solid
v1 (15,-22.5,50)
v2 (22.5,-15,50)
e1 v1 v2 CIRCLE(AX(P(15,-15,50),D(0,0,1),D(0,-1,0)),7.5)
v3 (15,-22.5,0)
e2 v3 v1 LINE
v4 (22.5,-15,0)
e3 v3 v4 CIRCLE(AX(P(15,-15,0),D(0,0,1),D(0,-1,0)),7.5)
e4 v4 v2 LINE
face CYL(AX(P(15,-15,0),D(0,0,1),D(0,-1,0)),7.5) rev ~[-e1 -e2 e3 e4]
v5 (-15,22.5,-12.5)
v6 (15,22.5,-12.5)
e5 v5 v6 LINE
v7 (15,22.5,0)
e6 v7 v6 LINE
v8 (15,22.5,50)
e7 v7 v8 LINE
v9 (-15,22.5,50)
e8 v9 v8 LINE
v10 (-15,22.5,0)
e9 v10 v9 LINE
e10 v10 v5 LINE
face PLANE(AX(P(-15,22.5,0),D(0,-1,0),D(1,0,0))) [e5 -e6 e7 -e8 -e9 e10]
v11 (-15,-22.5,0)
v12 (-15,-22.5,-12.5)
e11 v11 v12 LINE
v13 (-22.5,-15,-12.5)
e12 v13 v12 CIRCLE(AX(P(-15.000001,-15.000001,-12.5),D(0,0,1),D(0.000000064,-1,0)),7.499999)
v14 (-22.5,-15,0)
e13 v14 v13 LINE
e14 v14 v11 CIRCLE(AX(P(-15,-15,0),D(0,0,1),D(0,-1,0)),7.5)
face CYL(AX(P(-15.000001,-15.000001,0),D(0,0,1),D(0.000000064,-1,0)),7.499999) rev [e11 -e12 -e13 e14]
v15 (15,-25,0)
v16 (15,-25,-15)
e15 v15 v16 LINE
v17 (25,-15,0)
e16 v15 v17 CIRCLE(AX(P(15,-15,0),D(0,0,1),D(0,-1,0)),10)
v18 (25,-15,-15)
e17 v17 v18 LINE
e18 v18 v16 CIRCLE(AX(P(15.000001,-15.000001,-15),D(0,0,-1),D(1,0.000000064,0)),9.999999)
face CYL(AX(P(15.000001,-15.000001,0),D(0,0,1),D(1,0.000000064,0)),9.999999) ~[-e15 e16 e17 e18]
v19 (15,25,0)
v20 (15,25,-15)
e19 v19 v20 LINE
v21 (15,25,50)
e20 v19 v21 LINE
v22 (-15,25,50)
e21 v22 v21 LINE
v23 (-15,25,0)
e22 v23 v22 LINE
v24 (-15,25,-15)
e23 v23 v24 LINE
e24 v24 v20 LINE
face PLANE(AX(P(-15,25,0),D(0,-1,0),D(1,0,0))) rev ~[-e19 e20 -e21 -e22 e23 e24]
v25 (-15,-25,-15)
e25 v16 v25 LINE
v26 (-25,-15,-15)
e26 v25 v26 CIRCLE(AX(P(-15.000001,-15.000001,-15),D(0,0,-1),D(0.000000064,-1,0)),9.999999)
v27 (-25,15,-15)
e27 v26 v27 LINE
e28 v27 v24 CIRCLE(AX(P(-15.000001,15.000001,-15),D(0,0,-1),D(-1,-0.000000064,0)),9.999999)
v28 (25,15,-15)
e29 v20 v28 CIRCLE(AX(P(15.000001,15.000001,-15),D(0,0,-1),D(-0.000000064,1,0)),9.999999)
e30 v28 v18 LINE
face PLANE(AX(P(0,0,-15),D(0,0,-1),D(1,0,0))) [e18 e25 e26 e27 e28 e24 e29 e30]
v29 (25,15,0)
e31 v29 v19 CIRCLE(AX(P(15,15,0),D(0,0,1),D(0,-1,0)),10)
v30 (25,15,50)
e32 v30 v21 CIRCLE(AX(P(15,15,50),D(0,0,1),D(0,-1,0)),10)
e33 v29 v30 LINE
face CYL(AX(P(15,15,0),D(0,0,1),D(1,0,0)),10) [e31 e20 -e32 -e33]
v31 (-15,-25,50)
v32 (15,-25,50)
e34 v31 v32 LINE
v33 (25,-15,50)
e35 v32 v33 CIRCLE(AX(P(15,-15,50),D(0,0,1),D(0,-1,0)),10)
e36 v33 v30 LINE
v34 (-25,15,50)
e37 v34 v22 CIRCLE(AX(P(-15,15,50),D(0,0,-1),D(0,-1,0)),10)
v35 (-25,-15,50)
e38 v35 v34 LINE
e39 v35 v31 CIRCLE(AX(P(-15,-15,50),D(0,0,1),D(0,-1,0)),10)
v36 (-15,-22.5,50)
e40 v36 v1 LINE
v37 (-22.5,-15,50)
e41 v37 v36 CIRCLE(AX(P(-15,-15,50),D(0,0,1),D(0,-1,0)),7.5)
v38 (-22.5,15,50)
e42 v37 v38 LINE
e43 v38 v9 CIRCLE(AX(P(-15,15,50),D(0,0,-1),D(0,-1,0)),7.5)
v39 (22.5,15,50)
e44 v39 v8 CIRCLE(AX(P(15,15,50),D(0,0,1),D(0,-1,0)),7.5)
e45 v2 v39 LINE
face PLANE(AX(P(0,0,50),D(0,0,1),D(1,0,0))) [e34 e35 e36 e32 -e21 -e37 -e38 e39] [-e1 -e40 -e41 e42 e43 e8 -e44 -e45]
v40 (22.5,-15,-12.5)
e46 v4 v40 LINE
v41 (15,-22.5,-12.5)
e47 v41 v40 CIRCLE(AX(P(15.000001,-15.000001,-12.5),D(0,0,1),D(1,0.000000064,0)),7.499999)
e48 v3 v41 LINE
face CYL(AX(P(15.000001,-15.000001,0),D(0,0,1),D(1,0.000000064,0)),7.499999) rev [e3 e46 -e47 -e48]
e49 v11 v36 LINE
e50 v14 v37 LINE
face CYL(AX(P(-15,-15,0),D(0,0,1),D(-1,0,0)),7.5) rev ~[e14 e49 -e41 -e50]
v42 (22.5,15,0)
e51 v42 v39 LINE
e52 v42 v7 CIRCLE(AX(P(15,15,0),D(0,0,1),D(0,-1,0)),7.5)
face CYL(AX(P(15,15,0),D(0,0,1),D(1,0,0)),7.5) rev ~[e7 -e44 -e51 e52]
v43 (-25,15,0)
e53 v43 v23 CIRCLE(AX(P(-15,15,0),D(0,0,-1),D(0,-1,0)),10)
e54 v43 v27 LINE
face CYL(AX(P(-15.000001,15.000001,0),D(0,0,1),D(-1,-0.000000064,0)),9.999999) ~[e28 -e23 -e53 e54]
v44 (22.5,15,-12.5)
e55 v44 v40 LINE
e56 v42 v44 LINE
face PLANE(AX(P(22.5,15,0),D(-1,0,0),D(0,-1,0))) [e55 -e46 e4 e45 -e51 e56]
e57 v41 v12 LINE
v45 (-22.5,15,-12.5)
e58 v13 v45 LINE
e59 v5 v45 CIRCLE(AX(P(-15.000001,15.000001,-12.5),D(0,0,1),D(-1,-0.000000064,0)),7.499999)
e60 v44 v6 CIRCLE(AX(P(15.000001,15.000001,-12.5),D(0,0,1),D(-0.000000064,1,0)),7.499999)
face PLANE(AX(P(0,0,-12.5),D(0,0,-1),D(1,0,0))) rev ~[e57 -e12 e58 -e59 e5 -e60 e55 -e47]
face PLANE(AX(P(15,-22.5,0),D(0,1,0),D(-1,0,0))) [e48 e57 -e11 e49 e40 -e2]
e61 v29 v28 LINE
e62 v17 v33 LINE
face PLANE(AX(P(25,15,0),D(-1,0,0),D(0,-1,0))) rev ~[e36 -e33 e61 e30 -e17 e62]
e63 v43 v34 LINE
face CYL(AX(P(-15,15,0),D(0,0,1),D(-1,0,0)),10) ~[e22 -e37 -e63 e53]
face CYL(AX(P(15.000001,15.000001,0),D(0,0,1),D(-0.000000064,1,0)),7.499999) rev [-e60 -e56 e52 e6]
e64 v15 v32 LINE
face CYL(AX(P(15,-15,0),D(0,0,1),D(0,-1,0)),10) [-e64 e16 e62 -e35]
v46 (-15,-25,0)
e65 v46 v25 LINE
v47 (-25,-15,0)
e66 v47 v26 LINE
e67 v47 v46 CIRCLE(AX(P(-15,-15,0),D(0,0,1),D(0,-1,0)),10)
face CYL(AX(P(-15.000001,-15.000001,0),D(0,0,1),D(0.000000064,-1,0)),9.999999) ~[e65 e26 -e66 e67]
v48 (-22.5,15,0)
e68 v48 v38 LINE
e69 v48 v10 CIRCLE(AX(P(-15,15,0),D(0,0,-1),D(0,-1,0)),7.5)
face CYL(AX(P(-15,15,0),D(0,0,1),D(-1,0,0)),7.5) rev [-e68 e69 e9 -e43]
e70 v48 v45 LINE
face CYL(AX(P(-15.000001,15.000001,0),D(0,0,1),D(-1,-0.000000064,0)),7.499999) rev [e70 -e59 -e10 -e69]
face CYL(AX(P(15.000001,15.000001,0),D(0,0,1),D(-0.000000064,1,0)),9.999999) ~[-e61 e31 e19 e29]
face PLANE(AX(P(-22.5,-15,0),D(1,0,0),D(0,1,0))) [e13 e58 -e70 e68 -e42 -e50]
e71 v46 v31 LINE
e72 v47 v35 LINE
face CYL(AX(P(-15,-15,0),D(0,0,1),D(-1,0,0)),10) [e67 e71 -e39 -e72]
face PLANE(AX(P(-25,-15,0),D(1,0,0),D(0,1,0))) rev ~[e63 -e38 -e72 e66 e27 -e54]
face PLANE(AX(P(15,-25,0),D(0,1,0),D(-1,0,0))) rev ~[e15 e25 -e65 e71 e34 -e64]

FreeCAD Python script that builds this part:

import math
import FreeCAD as App
import Part
import Sketcher


def edges_at(feature, points):
    """Names of the edges that pass closest to the given points."""
    edges = feature.Shape.Edges
    near = lambda p: min(range(len(edges)), key=lambda i: edges[i].distToShape(Part.Vertex(*p))[0])
    return sorted({f"Edge{near(p) + 1}" for p in points})


def faces_at(feature, points):
    """Names of the faces that lie closest to the given points."""
    faces = feature.Shape.Faces
    near = lambda p: min(range(len(faces)), key=lambda i: faces[i].distToShape(Part.Vertex(*p))[0])
    return sorted({f"Face{near(p) + 1}" for p in points})


def add_polygon(sketch, points):
    """Adds a closed chain of lines whose ends are joined by coincident constraints."""
    first, n = sketch.GeometryCount, len(points)
    for a, b in zip(points, points[1:] + points[:1]):
        sketch.addGeometry(Part.LineSegment(App.Vector(*a, 0), App.Vector(*b, 0)), False)
    for i in range(n):
        sketch.addConstraint(Sketcher.Constraint("Coincident", first + i, 2, first + (i + 1) % n, 1))

doc = App.newDocument("Part")
body = doc.addObject("PartDesign::Body", "Body")

sketch1 = doc.addObject("Sketcher::SketchObject", "Sketch")
body.addObject(sketch1)
sketch1.AttachmentSupport = (doc.XY_Plane, [""])
sketch1.MapMode = "FlatFace"
add_polygon(sketch1, [(-25, 25), (-25, -25), (25, -25), (25, 25)])
sketch1.addConstraint([
    Sketcher.Constraint("Vertical", 0),
    Sketcher.Constraint("Horizontal", 1),
    Sketcher.Constraint("Vertical", 2),
    Sketcher.Constraint("Horizontal", 3),
    Sketcher.Constraint("Symmetric", 0, 2, 2, 2, -1, 1),
    Sketcher.Constraint("Equal", 3, 0),
    Sketcher.Constraint("DistanceX", 1, 1, 1, 2, 50.0),
])
pad1 = doc.addObject("PartDesign::Pad", "Pad")
body.addObject(pad1)
pad1.Profile = sketch1
pad1.Length = 50
doc.recompute()

fillet = doc.addObject("PartDesign::Fillet", "Fillet")
body.addObject(fillet)
fillet.Base = (pad1, edges_at(pad1, [
    (-25, -25, 25),
    (-25, 25, 25),
    (25, 25, 25),
    (25, -25, 25),
]))
fillet.Radius = 10

sketch2 = doc.addObject("Sketcher::SketchObject", "Sketch001")
body.addObject(sketch2)
sketch2.AttachmentSupport = (doc.XY_Plane, [""])
sketch2.MapMode = "FlatFace"
sketch2.addGeometry([
    Part.LineSegment(App.Vector(-25, -15, 0), App.Vector(-25, 15, 0)),
    Part.ArcOfCircle(Part.Circle(App.Vector(-15, 15, 0), App.Vector(0, 0, 1), 10), math.radians(90), math.radians(180)),
    Part.LineSegment(App.Vector(-15, 25, 0), App.Vector(15, 25, 0)),
    Part.ArcOfCircle(Part.Circle(App.Vector(15, 15, 0), App.Vector(0, 0, 1), 10), math.radians(0), math.radians(90)),
    Part.LineSegment(App.Vector(25, 15, 0), App.Vector(25, -15, 0)),
    Part.ArcOfCircle(Part.Circle(App.Vector(15, -15, 0), App.Vector(0, 0, 1), 10), math.radians(-90), math.radians(0)),
    Part.LineSegment(App.Vector(15, -25, 0), App.Vector(-15, -25, 0)),
    Part.ArcOfCircle(Part.Circle(App.Vector(-15, -15, 0), App.Vector(0, 0, 1), 10), math.radians(180), math.radians(270)),
], False)
sketch2.addConstraint([
    Sketcher.Constraint("Tangent", 0, 2, 1, 2),
    Sketcher.Constraint("Tangent", 1, 1, 2, 1),
    Sketcher.Constraint("Tangent", 2, 2, 3, 2),
    Sketcher.Constraint("Tangent", 3, 1, 4, 1),
    Sketcher.Constraint("Tangent", 4, 2, 5, 2),
    Sketcher.Constraint("Tangent", 5, 1, 6, 1),
    Sketcher.Constraint("Tangent", 6, 2, 7, 2),
    Sketcher.Constraint("Tangent", 7, 1, 0, 1),
    Sketcher.Constraint("Vertical", 0),
    Sketcher.Constraint("Horizontal", 2),
    Sketcher.Constraint("Vertical", 4),
    Sketcher.Constraint("Horizontal", 6),
    Sketcher.Constraint("Equal", 1, 3),
    Sketcher.Constraint("Equal", 3, 5),
    Sketcher.Constraint("Equal", 5, 7),
    Sketcher.Constraint("Symmetric", 1, 3, 5, 3, -1, 1),
    Sketcher.Constraint("Equal", 6, 0),
    Sketcher.Constraint("Radius", 1, 9.999999),
    Sketcher.Constraint("DistanceX", 2, 1, 2, 2, 30.0),
])
pad2 = doc.addObject("PartDesign::Pad", "Pad001")
body.addObject(pad2)
pad2.Profile = sketch2
pad2.Length = 15
pad2.Reversed = True
doc.recompute()

thickness = doc.addObject("PartDesign::Thickness", "Thickness")
body.addObject(thickness)
thickness.Base = (pad2, faces_at(pad2, [(0, 0, 50)]))
thickness.Value = 2.5
thickness.Reversed = True
thickness.Join = "Arc"

doc.recompute()
